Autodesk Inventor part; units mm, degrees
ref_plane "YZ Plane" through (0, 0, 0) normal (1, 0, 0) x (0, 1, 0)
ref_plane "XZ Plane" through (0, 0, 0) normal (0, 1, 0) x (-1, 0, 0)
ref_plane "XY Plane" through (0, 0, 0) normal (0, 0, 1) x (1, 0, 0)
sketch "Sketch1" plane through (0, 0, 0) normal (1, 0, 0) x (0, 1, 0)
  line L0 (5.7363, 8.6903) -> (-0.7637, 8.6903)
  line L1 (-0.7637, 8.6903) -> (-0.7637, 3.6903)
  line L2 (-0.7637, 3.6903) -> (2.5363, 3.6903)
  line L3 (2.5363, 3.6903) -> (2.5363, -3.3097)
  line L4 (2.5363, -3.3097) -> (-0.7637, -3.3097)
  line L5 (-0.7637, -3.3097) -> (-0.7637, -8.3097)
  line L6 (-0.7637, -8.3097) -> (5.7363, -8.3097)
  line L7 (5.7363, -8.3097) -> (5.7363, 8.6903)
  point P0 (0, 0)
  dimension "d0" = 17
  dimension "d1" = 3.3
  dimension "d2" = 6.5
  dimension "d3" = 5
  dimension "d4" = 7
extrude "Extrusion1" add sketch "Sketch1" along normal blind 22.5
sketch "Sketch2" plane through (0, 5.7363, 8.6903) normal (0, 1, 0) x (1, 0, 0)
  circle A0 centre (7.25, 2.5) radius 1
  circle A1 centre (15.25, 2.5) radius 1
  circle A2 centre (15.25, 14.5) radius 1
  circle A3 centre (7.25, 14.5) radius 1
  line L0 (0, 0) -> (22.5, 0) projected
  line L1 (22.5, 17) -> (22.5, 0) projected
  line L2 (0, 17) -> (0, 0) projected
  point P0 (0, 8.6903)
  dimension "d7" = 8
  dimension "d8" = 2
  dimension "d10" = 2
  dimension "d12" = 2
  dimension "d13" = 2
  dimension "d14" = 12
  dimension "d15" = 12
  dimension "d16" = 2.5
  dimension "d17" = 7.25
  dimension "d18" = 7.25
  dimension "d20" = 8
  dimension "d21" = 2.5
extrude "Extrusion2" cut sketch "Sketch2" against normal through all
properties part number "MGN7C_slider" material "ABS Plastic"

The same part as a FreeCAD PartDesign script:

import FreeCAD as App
import Part
import Sketcher
from FreeCAD import Vector

doc = App.newDocument("Part")
body = doc.addObject("PartDesign::Body", "Body")

sketch1 = body.newObject("Sketcher::SketchObject", "Sketch")
sketch1.AttachmentSupport = (doc.getObject("YZ_Plane"), [""])
sketch1.MapMode = "FlatFace"
sketch1.addGeometry([
    Part.LineSegment(Vector(5.7, -8.3, 0), Vector(5.7, 8.7, 0)),
    Part.LineSegment(Vector(5.7, 8.7, 0), Vector(-0.8, 8.7, 0)),
    Part.LineSegment(Vector(-0.8, 8.7, 0), Vector(-0.8, 3.7, 0)),
    Part.LineSegment(Vector(-0.8, 3.7, 0), Vector(2.5, 3.7, 0)),
    Part.LineSegment(Vector(2.5, 3.7, 0), Vector(2.5, -3.3, 0)),
    Part.LineSegment(Vector(2.5, -3.3, 0), Vector(-0.8, -3.3, 0)),
    Part.LineSegment(Vector(-0.8, -3.3, 0), Vector(-0.8, -8.3, 0)),
    Part.LineSegment(Vector(-0.8, -8.3, 0), Vector(5.7, -8.3, 0)),
], False)
sketch1.addConstraint([
    Sketcher.Constraint("Coincident", 0, 2, 1, 1),
    Sketcher.Constraint("Coincident", 1, 2, 2, 1),
    Sketcher.Constraint("Coincident", 2, 2, 3, 1),
    Sketcher.Constraint("Coincident", 3, 2, 4, 1),
    Sketcher.Constraint("Coincident", 4, 2, 5, 1),
    Sketcher.Constraint("Coincident", 5, 2, 6, 1),
    Sketcher.Constraint("Coincident", 6, 2, 7, 1),
    Sketcher.Constraint("Coincident", 7, 2, 0, 1),
    Sketcher.Constraint("Vertical", 0),
    Sketcher.Constraint("Horizontal", 1),
    Sketcher.Constraint("Vertical", 2),
    Sketcher.Constraint("Horizontal", 3),
    Sketcher.Constraint("Vertical", 4),
    Sketcher.Constraint("Horizontal", 5),
    Sketcher.Constraint("Vertical", 6),
    Sketcher.Constraint("Horizontal", 7),
    Sketcher.Constraint("Vertical", 2, 2, 5, 2),
    Sketcher.Constraint("Equal", 2, 6),
    Sketcher.Constraint("DistanceY", 0, 1, 0, 2, 17.0),
    Sketcher.Constraint("DistanceY", 2, 2, 2, 1, 5.0),
    Sketcher.Constraint("DistanceX", 1, 2, 1, 1, 6.5),
    Sketcher.Constraint("DistanceX", 3, 1, 3, 2, 3.3),
    Sketcher.Constraint("DistanceX", -1, 1, 0, 2, 5.7363),
    Sketcher.Constraint("DistanceY", -1, 1, 0, 2, 8.6903),
])
pad1 = body.newObject("PartDesign::Pad", "Pad")
pad1.Profile = sketch1
pad1.Length = 22.5

sketch2 = body.newObject("Sketcher::SketchObject", "Sketch001")
sketch2.AttachmentSupport = (doc.getObject("XZ_Plane"), [""])
sketch2.MapMode = "FlatFace"
sketch2.AttachmentOffset = App.Placement(Vector(0, 0, -5.7363), App.Rotation())
sketch2.addGeometry([
    Part.Circle(Vector(7.2, 6.2, 0), Vector(0, 0, 1), 1),
    Part.Circle(Vector(15.2, 6.2, 0), Vector(0, 0, 1), 1),
    Part.Circle(Vector(15.2, -5.8, 0), Vector(0, 0, 1), 1),
    Part.Circle(Vector(7.2, -5.8, 0), Vector(0, 0, 1), 1),
], False)
sketch2.addConstraint([
    Sketcher.Constraint("Equal", 0, 1),
    Sketcher.Constraint("Equal", 1, 2),
    Sketcher.Constraint("Equal", 2, 3),
    Sketcher.Constraint("Horizontal", 0, 3, 1, 3),
    Sketcher.Constraint("Horizontal", 2, 3, 3, 3),
    Sketcher.Constraint("Vertical", 1, 3, 2, 3),
    Sketcher.Constraint("Vertical", 0, 3, 3, 3),
    Sketcher.Constraint("Diameter", 0, 2.0),
    Sketcher.Constraint("DistanceX", 0, 3, 1, 3, 8.0),
    Sketcher.Constraint("DistanceY", 2, 3, 1, 3, 12.0),
    Sketcher.Constraint("DistanceX", -1, 1, 0, 3, 7.25),
    Sketcher.Constraint("DistanceY", -1, 1, 0, 3, 6.1903),
])
pocket1 = body.newObject("PartDesign::Pocket", "Pocket")
pocket1.Profile = sketch2
pocket1.Type = "ThroughAll"
pocket1.Reversed = True

doc.recompute()
